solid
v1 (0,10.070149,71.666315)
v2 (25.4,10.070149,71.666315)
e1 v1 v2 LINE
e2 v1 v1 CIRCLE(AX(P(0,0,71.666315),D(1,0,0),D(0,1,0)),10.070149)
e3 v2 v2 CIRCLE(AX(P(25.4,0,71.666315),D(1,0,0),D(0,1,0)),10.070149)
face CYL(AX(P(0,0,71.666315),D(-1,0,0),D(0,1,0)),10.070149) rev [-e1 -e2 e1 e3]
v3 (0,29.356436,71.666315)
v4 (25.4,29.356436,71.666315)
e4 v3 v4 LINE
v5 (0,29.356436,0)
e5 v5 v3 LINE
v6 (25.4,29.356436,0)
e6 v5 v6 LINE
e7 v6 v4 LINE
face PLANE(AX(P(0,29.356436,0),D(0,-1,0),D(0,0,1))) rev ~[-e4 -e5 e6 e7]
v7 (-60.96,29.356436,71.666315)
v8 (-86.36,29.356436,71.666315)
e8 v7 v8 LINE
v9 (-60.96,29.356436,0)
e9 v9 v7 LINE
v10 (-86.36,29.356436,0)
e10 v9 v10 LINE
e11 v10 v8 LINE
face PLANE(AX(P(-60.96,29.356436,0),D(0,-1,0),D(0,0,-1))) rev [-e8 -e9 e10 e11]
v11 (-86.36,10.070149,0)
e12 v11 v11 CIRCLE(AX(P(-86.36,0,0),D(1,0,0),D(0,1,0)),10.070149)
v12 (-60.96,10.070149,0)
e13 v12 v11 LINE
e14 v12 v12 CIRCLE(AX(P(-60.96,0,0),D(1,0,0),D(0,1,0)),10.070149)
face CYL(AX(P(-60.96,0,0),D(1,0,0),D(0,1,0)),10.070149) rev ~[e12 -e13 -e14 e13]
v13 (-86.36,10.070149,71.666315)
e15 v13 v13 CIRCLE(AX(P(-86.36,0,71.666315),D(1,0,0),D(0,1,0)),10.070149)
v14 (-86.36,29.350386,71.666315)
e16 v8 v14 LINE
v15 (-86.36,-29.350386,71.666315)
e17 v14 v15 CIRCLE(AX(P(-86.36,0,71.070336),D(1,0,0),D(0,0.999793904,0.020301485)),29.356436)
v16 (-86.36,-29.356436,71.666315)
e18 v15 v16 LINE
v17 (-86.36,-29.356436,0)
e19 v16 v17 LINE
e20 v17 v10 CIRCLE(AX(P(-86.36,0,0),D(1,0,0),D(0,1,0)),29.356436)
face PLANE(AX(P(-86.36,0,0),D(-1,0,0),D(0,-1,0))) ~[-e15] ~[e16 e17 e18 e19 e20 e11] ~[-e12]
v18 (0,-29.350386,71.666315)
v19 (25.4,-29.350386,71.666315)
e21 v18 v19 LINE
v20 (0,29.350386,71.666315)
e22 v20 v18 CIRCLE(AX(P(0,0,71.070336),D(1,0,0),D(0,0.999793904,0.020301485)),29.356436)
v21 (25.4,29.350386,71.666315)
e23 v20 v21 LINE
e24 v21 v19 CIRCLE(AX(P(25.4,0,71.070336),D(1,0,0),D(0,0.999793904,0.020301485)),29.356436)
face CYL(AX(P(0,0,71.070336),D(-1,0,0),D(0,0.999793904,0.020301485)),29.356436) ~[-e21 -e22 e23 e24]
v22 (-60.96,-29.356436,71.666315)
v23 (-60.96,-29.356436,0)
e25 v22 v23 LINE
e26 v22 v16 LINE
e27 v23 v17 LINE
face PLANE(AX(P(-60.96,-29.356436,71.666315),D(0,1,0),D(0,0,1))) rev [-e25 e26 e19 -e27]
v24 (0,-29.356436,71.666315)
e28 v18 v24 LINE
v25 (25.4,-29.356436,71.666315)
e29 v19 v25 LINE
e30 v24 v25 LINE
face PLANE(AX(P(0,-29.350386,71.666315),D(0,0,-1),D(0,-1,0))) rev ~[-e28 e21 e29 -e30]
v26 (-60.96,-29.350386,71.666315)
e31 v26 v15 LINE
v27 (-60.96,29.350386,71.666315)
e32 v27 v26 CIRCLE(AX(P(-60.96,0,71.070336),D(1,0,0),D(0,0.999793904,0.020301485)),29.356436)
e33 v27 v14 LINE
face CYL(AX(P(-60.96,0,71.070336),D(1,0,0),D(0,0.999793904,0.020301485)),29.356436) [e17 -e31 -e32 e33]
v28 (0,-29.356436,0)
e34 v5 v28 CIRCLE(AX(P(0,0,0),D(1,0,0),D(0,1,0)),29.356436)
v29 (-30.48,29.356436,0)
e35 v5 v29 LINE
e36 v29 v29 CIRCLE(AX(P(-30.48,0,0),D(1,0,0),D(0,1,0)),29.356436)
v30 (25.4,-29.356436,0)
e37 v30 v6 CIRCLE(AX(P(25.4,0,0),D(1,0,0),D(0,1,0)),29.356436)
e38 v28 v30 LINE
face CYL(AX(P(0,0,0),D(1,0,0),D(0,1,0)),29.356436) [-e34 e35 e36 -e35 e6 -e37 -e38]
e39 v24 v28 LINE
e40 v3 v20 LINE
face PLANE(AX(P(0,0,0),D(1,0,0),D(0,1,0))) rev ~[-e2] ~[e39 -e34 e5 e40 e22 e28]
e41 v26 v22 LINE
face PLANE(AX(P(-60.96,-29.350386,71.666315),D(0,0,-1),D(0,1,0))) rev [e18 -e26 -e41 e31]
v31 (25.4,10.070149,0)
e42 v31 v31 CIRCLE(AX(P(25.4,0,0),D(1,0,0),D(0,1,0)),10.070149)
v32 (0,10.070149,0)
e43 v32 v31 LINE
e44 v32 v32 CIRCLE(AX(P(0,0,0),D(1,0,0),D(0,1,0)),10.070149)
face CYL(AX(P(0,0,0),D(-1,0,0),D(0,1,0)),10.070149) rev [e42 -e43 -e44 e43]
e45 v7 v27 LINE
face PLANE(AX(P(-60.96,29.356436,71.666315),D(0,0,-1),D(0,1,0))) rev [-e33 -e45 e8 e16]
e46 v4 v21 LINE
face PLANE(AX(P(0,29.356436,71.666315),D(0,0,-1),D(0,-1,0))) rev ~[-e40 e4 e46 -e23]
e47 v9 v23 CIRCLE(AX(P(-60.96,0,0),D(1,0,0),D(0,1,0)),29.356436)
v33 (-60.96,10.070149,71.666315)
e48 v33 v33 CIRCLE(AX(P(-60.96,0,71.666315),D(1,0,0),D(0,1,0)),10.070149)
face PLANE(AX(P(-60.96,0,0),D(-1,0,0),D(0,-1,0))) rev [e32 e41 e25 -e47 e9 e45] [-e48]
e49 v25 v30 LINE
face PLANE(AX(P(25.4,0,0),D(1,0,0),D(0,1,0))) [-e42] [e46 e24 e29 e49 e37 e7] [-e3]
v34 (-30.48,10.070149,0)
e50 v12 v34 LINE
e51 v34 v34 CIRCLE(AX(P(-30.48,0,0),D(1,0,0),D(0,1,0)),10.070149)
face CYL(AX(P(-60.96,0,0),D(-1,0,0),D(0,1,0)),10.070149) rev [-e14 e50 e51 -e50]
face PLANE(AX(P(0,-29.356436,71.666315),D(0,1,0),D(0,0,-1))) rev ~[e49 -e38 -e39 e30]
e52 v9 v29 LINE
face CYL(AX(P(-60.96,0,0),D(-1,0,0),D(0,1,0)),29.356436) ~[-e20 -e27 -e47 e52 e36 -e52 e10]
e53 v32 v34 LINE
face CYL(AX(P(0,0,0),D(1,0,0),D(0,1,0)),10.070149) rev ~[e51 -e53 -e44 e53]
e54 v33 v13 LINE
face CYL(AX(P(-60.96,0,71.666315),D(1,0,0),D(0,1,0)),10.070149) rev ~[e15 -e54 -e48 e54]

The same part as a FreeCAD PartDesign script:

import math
import FreeCAD as App
import Part
import Sketcher

V = App.Vector
Q = App.Units.Quantity

doc = App.newDocument("Part")
body = doc.addObject("PartDesign::Body", "Body")

# Sketch on YZ plane
sketch1 = doc.addObject("Sketcher::SketchObject", "Sketch")
body.addObject(sketch1)
sketch1.AttachmentSupport = (doc.YZ_Plane, [""])
sketch1.MapMode = "FlatFace"
sketch1.addGeometry([
    Part.ArcOfCircle(Part.Circle(V(0, 0, 0), V(0, 0, 1), 29.356), math.radians(180), math.radians(360)),  # 0
    Part.LineSegment(V(29.356, 0, 0), V(29.356, 71.666, 0)),  # 1
    Part.LineSegment(V(29.356, 71.666, 0), V(29.35, 71.666, 0)),  # 2
    Part.ArcOfCircle(Part.Circle(V(0, 71.07, 0), V(0, 0, 1), 29.356), math.radians(1), math.radians(179)),  # 3
    Part.LineSegment(V(-29.35, 71.666, 0), V(-29.356, 71.666, 0)),  # 4
    Part.LineSegment(V(-29.356, 71.666, 0), V(-29.356, 0, 0)),  # 5
    Part.Circle(V(0, 0, 0), V(0, 0, 1), 10.07),  # 6
    Part.Circle(V(0, 71.666, 0), V(0, 0, 1), 10.07),  # 7
], False)
sketch1.addConstraint([
    Sketcher.Constraint("Tangent", 0, 2, 1, 1),
    Sketcher.Constraint("Coincident", 1, 2, 2, 1),
    Sketcher.Constraint("Coincident", 2, 2, 3, 1),
    Sketcher.Constraint("Coincident", 3, 2, 4, 1),
    Sketcher.Constraint("Coincident", 4, 2, 5, 1),
    Sketcher.Constraint("Tangent", 5, 2, 0, 1),
    Sketcher.Constraint("Vertical", 1),
    Sketcher.Constraint("Horizontal", 2),
    Sketcher.Constraint("Horizontal", 4),
    Sketcher.Constraint("Vertical", 5),
    Sketcher.Constraint("Coincident", 0, 3, -1, 1),
    Sketcher.Constraint("Coincident", 6, 3, -1, 1),
    Sketcher.Constraint("Equal", 0, 3),
    Sketcher.Constraint("Equal", 6, 7),
    Sketcher.Constraint("Symmetric", 2, 2, 3, 2, -2),
    Sketcher.Constraint("PointOnObject", 7, 3, -2),
    Sketcher.Constraint("Horizontal", 7, 3, 1, 2),
    Sketcher.Constraint("Diameter", 6, Q("20.140298 mm")),
    Sketcher.Constraint("Radius", 0, Q("29.356436 mm")),
    Sketcher.Constraint("DistanceX", 2, 2, 2, 1, Q("0.00605 mm")),
    Sketcher.Constraint("DistanceY", 1, 1, 1, 2, Q("71.666315 mm")),
])
pad1 = doc.addObject("PartDesign::Pad", "Pad")
body.addObject(pad1)
pad1.Profile = sketch1
pad1.Length = Q("1 in")

# Sketch on YZ plane
sketch2 = doc.addObject("Sketcher::SketchObject", "Sketch001")
body.addObject(sketch2)
sketch2.AttachmentSupport = (doc.YZ_Plane, [""])
sketch2.MapMode = "FlatFace"
sketch2.addGeometry([
    Part.Circle(V(0, 0, 0), V(0, 0, 1), 29),
    Part.Circle(V(0, 0, 0), V(0, 0, 1), 10),
], False)
sketch2.addConstraint([
    Sketcher.Constraint("Coincident", 0, 3, -1, 1),
    Sketcher.Constraint("Coincident", 1, 3, -1, 1),
    Sketcher.Constraint("Diameter", 1, Q("20.140298 mm")),
    Sketcher.Constraint("Diameter", 0, Q("58.712872 mm")),
])
pad2 = doc.addObject("PartDesign::Pad", "Pad001")
body.addObject(pad2)
pad2.Profile = sketch2
pad2.Length = Q("1.2 in")
pad2.Reversed = True
body2 = doc.addObject("PartDesign::Body", "Body001")
doc.recompute()

body2.BaseFeature = body
doc.recompute()

mirroring = doc.addObject("Part::Mirroring", "Mirroring")
mirroring.Source = body
mirroring.Base = V(-30.48, 0, 0)
mirroring.Normal = V(-1, 0, 0)
body3 = doc.addObject("PartDesign::Body", "Body002")
body3.BaseFeature = mirroring
boolean = doc.addObject("PartDesign::Boolean", "Boolean")
body2.addObject(boolean)
boolean.Type = "Fuse"
boolean.addObjects([body3])
doc.recompute()
mirroring.Visibility = False

doc.recompute()
